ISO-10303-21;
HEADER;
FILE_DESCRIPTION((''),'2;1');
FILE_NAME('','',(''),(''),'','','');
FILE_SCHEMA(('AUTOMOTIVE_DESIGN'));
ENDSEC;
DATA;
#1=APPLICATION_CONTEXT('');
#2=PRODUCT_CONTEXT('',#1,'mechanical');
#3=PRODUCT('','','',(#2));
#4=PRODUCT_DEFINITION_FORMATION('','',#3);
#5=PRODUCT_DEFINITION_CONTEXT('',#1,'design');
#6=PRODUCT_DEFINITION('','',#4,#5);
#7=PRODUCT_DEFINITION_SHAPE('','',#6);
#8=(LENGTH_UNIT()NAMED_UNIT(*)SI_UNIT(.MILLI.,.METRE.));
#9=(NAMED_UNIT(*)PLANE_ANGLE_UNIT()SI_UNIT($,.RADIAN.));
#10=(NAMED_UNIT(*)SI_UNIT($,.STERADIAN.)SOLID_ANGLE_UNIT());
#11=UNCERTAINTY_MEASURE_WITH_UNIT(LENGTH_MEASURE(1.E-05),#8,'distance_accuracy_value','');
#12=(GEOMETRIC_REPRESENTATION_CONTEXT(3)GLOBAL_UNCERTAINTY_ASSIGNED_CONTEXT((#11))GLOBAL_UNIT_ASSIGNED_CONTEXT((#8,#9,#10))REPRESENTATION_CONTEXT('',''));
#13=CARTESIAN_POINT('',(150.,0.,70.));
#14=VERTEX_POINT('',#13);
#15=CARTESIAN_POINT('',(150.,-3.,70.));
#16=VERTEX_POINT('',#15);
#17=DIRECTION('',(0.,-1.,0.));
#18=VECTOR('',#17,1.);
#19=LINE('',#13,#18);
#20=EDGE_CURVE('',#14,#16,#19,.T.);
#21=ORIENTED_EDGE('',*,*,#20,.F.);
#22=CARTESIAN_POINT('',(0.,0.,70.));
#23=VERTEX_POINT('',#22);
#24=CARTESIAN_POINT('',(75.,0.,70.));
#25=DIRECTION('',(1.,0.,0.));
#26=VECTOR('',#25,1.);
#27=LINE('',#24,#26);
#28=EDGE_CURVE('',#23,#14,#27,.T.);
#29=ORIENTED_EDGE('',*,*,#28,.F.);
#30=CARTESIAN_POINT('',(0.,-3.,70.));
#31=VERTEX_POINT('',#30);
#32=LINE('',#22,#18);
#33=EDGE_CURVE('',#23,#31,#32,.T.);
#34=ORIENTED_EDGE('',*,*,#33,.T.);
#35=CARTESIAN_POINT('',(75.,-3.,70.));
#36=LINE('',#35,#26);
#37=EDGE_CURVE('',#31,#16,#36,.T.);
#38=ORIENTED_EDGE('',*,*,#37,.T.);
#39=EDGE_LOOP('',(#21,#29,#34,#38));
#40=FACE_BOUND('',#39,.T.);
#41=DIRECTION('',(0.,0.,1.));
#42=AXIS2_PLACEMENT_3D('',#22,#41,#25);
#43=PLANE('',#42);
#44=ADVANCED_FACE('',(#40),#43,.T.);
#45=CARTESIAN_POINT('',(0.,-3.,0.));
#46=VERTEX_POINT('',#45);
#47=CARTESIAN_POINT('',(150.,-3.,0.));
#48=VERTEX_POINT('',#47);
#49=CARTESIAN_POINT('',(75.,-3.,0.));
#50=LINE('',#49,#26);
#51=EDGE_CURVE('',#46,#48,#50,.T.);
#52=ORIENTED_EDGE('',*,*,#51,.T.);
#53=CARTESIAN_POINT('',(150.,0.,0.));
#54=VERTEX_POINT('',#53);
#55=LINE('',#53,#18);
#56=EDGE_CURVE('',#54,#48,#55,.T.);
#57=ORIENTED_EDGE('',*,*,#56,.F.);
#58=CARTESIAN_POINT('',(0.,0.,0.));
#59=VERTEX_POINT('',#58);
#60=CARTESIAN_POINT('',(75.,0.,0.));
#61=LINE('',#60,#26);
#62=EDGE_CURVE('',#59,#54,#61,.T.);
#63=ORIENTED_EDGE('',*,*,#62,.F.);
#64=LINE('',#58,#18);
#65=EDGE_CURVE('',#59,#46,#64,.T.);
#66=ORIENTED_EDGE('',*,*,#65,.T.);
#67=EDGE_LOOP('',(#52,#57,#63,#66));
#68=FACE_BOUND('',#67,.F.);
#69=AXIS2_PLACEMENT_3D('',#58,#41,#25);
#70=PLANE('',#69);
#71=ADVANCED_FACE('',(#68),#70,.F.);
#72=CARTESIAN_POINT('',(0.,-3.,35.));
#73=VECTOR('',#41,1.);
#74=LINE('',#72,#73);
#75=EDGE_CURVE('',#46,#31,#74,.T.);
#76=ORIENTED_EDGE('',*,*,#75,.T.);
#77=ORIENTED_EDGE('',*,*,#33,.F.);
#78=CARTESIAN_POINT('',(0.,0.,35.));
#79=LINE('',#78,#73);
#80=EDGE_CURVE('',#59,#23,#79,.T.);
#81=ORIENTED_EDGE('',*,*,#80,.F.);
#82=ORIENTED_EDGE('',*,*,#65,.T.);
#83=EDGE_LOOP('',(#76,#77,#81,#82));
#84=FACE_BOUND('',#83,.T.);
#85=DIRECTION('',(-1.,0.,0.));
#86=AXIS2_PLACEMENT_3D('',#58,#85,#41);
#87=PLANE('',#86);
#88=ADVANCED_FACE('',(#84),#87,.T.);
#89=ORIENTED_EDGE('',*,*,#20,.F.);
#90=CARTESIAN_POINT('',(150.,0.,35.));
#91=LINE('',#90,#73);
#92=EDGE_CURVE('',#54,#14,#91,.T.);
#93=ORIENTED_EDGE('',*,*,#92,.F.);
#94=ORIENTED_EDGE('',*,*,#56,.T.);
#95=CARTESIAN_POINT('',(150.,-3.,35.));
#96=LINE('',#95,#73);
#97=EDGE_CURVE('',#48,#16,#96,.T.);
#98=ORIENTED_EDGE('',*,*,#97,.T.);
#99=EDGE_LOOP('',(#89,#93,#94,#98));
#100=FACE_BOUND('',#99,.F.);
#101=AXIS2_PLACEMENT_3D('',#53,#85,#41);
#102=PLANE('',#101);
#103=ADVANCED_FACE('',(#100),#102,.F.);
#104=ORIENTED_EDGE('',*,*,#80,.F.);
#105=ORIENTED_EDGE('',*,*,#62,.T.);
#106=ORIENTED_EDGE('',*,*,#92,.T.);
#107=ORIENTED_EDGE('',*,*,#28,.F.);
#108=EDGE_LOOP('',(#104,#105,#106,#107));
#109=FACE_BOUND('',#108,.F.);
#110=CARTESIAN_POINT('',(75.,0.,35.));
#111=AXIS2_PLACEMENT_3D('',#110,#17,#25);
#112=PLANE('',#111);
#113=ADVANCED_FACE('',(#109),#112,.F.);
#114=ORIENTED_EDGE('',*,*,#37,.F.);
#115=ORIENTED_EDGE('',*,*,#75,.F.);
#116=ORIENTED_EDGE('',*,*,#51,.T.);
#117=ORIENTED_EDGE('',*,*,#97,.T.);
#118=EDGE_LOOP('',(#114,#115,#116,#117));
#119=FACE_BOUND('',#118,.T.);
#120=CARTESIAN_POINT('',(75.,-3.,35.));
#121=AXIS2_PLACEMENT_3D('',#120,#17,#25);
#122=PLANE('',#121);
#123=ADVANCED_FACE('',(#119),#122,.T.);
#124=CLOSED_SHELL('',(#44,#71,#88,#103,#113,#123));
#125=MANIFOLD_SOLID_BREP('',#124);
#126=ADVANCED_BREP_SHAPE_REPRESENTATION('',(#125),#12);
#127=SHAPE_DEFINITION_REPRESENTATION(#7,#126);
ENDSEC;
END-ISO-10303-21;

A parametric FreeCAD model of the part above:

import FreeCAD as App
import Part
import Sketcher

V = App.Vector

doc = App.newDocument("Part")
body = doc.addObject("PartDesign::Body", "Body")

sketch1 = body.newObject("Sketcher::SketchObject", "Sketch")
sketch1.AttachmentSupport = (doc.getObject("XZ_Plane"), [""])
sketch1.MapMode = "FlatFace"
sketch1.addGeometry(Part.LineSegment(V(0, 70, 0), V(0, 0, 0)), False)
sketch1.addGeometry(Part.LineSegment(V(0, 0, 0), V(150, 0, 0)), False)
sketch1.addGeometry(Part.LineSegment(V(150, 0, 0), V(150, 70, 0)), False)
sketch1.addGeometry(Part.LineSegment(V(150, 70, 0), V(0, 70, 0)), False)
sketch1.addConstraint(Sketcher.Constraint("Coincident", 0, 2, 1, 1))
sketch1.addConstraint(Sketcher.Constraint("Coincident", 1, 2, 2, 1))
sketch1.addConstraint(Sketcher.Constraint("Coincident", 2, 2, 3, 1))
sketch1.addConstraint(Sketcher.Constraint("Coincident", 3, 2, 0, 1))
sketch1.addConstraint(Sketcher.Constraint("Vertical", 0))
sketch1.addConstraint(Sketcher.Constraint("Horizontal", 1))
sketch1.addConstraint(Sketcher.Constraint("Vertical", 2))
sketch1.addConstraint(Sketcher.Constraint("Horizontal", 3))
sketch1.addConstraint(Sketcher.Constraint("Coincident", 0, 2, -1, 1))
sketch1.addConstraint(Sketcher.Constraint("DistanceX", 1, 1, 1, 2, 150.0))
sketch1.addConstraint(Sketcher.Constraint("DistanceY", 0, 2, 0, 1, 70.0))
pad1 = body.newObject("PartDesign::Pad", "Pad")
pad1.Profile = sketch1
pad1.Length = 3

sketch2 = body.newObject("Sketcher::SketchObject", "Sketch001")
sketch2.AttachmentSupport = (doc.getObject("XZ_Plane"), [""])
sketch2.MapMode = "FlatFace"
sketch2.AttachmentOffset = App.Placement(V(0, 0, 3), App.Rotation())
sketch2.addGeometry(Part.Circle(V(35, 35, 0), V(0, 0, 1), 22), False)
sketch2.addConstraint(Sketcher.Constraint("Diameter", 0, 45.0))
sketch2.addConstraint(Sketcher.Constraint("DistanceX", -1, 1, 0, 3, 35.0))
sketch2.addConstraint(Sketcher.Constraint("DistanceY", -1, 1, 0, 3, 35.0))
pocket1 = body.newObject("PartDesign::Pocket", "Pocket")
pocket1.Profile = sketch2
pocket1.Length = 5
pocket1.Reversed = True

doc.recompute()
